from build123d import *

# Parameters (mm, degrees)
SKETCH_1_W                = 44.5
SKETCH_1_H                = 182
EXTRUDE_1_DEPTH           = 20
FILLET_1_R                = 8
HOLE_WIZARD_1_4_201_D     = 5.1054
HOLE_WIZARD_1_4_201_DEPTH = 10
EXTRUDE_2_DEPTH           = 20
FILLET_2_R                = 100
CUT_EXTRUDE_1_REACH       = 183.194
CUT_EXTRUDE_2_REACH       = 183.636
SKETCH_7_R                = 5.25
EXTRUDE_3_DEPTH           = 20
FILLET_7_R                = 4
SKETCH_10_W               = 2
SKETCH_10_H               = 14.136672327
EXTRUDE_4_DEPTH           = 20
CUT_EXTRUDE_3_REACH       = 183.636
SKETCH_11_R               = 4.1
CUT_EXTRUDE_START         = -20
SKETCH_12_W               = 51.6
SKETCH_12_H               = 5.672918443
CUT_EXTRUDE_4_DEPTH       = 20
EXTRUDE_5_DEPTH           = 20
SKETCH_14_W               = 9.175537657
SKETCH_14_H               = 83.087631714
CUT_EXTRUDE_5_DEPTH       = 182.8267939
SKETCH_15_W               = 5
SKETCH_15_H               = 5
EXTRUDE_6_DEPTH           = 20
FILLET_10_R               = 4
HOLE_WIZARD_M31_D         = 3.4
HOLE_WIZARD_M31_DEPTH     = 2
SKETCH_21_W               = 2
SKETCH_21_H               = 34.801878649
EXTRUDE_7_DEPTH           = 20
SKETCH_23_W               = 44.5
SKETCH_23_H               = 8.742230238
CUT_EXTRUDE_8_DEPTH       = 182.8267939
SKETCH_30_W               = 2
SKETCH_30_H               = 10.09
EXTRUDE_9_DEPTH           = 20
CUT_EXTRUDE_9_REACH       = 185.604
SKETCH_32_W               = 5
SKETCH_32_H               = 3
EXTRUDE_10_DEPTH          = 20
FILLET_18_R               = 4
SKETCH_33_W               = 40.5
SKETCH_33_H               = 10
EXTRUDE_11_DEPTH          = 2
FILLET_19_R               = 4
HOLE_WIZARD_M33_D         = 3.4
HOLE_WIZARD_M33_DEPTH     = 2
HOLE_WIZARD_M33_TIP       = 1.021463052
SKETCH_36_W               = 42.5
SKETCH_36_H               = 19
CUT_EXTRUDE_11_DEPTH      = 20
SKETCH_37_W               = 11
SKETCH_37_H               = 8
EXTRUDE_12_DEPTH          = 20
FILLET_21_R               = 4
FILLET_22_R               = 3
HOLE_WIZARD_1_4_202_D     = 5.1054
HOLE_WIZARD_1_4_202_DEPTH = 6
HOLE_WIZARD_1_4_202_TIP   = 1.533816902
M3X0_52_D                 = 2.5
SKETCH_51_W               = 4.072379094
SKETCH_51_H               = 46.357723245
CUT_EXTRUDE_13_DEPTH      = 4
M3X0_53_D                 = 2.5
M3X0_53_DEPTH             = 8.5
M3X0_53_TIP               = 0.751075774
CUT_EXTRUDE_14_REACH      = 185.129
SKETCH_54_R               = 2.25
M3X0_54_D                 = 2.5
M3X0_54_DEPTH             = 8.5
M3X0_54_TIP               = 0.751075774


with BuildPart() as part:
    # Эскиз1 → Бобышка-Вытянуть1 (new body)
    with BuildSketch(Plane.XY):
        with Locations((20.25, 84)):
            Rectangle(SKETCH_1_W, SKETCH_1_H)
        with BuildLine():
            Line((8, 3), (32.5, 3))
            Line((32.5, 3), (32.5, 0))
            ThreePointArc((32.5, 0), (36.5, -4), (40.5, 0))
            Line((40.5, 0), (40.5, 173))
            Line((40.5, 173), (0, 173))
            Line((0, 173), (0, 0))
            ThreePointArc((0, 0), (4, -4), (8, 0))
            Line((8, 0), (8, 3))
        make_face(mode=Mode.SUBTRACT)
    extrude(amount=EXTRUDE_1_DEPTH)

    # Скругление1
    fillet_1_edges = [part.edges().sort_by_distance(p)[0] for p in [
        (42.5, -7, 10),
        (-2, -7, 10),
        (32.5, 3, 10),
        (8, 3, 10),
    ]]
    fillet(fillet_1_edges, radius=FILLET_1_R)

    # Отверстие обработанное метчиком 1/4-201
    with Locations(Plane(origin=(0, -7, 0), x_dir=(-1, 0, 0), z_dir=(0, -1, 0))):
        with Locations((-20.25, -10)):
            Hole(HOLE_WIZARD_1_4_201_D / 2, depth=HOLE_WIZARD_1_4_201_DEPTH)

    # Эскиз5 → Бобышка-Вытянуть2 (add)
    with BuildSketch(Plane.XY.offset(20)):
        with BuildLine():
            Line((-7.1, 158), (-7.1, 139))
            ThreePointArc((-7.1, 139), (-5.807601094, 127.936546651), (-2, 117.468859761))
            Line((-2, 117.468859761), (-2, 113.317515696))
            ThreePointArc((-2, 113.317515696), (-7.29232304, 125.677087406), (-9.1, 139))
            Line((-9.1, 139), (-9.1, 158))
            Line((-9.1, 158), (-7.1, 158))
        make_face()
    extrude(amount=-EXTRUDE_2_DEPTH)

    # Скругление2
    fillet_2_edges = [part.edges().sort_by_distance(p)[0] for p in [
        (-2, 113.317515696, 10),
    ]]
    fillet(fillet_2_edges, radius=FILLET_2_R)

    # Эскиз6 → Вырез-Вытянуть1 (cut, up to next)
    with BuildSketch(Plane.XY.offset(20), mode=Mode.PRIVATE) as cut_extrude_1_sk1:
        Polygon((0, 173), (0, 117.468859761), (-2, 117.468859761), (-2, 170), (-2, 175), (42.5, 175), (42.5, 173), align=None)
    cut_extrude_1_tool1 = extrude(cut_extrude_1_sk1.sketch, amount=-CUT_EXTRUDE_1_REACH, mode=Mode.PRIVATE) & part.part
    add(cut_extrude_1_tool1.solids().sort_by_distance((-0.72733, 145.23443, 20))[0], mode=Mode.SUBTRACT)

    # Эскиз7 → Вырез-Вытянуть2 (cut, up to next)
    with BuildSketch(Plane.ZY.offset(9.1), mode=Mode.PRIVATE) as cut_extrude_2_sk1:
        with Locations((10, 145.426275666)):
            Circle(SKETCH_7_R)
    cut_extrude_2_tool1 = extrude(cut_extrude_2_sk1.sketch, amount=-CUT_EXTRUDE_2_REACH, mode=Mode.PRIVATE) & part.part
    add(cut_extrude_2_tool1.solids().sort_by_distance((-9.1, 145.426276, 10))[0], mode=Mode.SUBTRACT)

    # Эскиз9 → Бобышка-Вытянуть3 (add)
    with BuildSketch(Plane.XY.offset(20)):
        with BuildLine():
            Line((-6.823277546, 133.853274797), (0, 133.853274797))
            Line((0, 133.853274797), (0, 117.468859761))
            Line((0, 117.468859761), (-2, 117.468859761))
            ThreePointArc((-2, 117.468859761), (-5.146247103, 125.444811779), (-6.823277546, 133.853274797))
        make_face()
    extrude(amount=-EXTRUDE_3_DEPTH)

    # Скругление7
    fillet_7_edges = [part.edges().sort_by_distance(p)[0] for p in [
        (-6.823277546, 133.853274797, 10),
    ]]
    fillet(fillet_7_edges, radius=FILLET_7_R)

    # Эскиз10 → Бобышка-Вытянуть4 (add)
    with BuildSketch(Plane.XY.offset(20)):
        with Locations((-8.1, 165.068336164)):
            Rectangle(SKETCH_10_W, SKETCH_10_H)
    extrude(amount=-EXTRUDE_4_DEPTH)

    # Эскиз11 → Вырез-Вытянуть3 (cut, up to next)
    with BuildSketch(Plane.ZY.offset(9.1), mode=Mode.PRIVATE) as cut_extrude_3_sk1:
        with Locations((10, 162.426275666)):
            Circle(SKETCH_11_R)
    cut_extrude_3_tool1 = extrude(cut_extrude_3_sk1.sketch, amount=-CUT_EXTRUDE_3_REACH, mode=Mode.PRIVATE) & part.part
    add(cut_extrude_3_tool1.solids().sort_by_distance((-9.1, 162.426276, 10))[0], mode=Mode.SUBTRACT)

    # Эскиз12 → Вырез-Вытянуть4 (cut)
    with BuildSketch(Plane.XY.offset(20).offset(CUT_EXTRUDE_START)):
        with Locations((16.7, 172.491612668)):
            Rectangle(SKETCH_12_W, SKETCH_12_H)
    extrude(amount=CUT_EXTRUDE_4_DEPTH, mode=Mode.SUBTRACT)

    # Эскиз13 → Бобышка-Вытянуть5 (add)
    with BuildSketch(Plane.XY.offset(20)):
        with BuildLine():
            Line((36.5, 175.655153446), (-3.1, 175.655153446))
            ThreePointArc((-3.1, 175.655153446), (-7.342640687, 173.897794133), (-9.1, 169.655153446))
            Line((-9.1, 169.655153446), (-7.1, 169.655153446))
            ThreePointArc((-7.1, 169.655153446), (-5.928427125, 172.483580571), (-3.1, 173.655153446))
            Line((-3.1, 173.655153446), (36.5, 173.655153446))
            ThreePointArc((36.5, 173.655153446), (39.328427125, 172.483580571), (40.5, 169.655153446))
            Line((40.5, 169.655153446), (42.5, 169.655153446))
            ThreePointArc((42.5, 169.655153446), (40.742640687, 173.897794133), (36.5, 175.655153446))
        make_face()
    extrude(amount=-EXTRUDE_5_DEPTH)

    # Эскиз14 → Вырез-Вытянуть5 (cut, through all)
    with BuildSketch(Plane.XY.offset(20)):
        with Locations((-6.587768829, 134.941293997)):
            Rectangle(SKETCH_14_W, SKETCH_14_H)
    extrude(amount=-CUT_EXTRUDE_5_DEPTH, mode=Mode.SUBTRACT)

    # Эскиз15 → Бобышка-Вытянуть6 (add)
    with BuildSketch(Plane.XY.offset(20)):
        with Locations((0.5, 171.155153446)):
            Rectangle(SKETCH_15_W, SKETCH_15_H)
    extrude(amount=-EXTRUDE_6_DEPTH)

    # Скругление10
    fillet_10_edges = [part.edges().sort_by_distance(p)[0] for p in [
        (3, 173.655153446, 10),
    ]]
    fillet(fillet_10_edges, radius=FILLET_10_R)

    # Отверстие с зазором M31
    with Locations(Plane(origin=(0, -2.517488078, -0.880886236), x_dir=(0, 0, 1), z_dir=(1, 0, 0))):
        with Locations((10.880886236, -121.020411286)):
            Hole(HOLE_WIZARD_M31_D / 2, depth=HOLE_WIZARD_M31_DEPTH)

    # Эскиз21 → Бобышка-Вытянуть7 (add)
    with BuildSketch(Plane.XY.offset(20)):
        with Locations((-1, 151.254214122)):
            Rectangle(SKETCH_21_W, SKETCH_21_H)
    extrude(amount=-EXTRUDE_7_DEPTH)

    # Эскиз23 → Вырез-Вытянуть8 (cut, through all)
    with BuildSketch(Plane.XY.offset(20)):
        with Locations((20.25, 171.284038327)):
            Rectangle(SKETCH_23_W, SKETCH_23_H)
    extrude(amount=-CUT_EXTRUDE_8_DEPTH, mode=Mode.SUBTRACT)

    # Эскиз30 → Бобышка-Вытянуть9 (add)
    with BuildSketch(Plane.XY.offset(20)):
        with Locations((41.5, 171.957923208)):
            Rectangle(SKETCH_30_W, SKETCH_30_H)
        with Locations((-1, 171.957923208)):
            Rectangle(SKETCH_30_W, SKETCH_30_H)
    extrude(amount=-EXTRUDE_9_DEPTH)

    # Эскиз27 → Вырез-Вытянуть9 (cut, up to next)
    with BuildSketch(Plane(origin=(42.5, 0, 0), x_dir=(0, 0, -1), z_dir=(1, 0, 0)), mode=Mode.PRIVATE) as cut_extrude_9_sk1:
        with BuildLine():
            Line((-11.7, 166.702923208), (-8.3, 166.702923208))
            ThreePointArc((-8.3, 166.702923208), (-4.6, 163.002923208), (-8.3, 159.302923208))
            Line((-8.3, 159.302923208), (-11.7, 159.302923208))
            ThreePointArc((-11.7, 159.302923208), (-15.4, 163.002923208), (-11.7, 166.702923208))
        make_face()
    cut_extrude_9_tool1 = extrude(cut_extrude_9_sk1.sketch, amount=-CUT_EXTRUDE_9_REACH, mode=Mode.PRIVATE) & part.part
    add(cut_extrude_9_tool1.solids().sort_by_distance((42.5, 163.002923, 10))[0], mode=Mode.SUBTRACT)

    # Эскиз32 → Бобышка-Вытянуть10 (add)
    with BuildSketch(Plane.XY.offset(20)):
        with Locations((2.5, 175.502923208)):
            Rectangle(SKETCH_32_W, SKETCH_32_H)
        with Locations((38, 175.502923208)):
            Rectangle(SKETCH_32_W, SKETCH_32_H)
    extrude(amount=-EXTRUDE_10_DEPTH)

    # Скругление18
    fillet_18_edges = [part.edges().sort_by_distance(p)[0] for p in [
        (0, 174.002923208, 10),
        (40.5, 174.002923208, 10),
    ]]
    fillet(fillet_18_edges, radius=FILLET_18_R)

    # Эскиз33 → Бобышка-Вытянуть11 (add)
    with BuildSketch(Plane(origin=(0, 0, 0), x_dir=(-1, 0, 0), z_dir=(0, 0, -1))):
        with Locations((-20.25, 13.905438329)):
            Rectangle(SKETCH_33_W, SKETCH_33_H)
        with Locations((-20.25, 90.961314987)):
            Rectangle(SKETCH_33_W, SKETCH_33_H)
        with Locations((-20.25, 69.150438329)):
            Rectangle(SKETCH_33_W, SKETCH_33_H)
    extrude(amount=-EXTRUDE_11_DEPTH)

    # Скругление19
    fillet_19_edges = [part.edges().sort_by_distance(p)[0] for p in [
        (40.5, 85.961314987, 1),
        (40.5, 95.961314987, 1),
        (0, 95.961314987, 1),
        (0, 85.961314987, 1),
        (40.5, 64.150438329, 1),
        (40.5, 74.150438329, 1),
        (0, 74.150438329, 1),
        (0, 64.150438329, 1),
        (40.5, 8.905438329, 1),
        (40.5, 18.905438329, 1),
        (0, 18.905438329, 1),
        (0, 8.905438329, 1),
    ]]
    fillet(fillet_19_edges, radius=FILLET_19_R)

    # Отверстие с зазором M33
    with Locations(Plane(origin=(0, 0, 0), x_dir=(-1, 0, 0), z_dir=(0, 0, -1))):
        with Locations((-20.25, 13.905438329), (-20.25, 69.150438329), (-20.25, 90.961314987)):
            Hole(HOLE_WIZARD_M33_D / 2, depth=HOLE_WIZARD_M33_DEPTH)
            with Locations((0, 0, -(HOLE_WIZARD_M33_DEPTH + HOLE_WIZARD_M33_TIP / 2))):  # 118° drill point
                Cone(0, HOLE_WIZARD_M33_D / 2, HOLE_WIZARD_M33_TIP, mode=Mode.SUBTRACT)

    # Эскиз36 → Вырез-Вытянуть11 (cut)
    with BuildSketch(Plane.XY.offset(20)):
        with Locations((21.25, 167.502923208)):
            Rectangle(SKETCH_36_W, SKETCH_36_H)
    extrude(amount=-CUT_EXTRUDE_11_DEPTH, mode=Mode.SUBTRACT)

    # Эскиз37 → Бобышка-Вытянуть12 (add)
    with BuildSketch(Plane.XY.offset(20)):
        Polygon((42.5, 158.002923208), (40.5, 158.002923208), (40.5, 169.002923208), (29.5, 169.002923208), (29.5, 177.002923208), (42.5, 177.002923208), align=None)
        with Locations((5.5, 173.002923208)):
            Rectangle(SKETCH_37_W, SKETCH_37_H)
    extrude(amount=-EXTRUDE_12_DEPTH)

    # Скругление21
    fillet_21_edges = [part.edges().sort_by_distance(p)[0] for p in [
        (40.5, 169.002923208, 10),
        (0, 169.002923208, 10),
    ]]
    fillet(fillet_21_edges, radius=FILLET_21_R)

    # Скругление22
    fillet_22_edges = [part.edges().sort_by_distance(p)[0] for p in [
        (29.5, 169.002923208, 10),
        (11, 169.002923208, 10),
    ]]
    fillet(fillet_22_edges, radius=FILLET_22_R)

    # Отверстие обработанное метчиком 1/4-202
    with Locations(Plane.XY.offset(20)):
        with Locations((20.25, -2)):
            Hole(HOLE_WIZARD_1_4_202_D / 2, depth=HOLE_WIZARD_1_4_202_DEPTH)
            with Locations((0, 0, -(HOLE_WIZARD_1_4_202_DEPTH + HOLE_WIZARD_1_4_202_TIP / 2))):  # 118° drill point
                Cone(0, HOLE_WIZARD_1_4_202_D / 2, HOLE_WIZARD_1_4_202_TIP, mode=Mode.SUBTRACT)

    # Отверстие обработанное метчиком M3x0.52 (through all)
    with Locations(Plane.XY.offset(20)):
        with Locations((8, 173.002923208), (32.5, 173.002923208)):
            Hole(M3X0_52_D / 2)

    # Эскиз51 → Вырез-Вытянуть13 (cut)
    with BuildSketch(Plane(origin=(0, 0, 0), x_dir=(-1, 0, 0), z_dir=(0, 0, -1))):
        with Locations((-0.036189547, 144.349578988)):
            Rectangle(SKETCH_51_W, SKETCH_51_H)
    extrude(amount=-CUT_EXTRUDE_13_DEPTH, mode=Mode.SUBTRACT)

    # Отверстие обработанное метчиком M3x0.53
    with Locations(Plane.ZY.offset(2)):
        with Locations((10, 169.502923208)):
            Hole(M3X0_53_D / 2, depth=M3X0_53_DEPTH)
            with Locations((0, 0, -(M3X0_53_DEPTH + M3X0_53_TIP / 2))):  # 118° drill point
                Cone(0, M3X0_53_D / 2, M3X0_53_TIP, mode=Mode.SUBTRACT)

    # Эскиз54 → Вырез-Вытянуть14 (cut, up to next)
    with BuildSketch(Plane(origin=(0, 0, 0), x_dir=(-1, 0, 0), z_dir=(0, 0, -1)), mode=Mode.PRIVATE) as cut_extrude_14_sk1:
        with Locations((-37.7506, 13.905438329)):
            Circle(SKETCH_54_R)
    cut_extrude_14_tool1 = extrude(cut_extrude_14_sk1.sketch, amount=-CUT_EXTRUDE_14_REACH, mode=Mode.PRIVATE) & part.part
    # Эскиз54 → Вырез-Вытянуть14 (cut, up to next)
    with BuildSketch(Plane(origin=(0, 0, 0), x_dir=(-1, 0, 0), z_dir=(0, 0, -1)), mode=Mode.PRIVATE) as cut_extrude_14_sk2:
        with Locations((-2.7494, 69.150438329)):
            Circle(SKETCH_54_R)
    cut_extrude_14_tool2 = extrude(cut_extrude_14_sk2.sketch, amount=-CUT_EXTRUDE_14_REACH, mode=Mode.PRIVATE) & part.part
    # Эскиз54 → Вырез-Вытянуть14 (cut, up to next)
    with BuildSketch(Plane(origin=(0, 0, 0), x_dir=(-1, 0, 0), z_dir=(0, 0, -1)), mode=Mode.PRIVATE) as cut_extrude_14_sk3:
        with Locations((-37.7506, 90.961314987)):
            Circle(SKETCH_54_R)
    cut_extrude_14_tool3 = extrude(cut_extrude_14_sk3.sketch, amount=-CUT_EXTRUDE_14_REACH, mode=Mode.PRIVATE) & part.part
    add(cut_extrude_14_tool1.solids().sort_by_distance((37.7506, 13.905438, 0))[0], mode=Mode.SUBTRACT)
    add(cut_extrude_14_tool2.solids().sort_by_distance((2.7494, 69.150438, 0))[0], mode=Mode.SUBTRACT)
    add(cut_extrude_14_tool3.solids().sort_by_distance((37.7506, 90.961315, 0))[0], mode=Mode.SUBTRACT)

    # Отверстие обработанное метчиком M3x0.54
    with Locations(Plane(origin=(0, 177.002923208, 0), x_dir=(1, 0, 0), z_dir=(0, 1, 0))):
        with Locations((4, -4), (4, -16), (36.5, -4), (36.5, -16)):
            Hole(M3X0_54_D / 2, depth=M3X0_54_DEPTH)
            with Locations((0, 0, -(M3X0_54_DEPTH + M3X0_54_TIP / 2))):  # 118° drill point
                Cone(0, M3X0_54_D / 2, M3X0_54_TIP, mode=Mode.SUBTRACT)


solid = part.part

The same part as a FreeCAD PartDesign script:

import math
import FreeCAD as App
import Part
import Sketcher

V = App.Vector
Q = App.Units.Quantity


def edges_at(feature, points):
    """Names of the edges that pass closest to the given points."""
    edges = feature.Shape.Edges
    near = lambda p: min(range(len(edges)), key=lambda i: edges[i].distToShape(Part.Vertex(*p))[0])
    return sorted({f"Edge{near(p) + 1}" for p in points})


def add_polygon(sketch, points):
    """Adds a closed chain of lines whose ends are joined by coincident constraints."""
    first, n = sketch.GeometryCount, len(points)
    for a, b in zip(points, points[1:] + points[:1]):
        sketch.addGeometry(Part.LineSegment(App.Vector(*a, 0), App.Vector(*b, 0)), False)
    for i in range(n):
        sketch.addConstraint(Sketcher.Constraint("Coincident", first + i, 2, first + (i + 1) % n, 1))

doc = App.newDocument("Part")
body = doc.addObject("PartDesign::Body", "Body")

# Sketch on XY plane
sketch1 = body.newObject("Sketcher::SketchObject", "Sketch")
sketch1.AttachmentSupport = (doc.getObject("XY_Plane"), [""])
sketch1.MapMode = "FlatFace"
add_polygon(sketch1, [(-2, 175), (-2, -7), (42.5, -7), (42.5, 175)])  # lines 0-3
sketch1.addGeometry(Part.LineSegment(V(32.5, 3, 0), V(8, 3, 0)), False)  # 4
sketch1.addGeometry(Part.LineSegment(V(8, 3, 0), V(8, 0, 0)), False)  # 5
sketch1.addGeometry(Part.ArcOfCircle(Part.Circle(V(4, 0, 0), V(0, 0, 1), 4), math.radians(180), math.radians(360)), False)  # 6
sketch1.addGeometry(Part.LineSegment(V(0, 0, 0), V(0, 173, 0)), False)  # 7
sketch1.addGeometry(Part.LineSegment(V(0, 173, 0), V(40.5, 173, 0)), False)  # 8
sketch1.addGeometry(Part.LineSegment(V(40.5, 173, 0), V(40.5, 0, 0)), False)  # 9
sketch1.addGeometry(Part.ArcOfCircle(Part.Circle(V(36.5, 0, 0), V(0, 0, 1), 4), math.radians(180), math.radians(360)), False)  # 10
sketch1.addGeometry(Part.LineSegment(V(32.5, 0, 0), V(32.5, 3, 0)), False)  # 11
sketch1.addConstraint([
    Sketcher.Constraint("Coincident", 4, 2, 5, 1),
    Sketcher.Constraint("Tangent", 5, 2, 6, 2),
    Sketcher.Constraint("Tangent", 6, 1, 7, 1),
    Sketcher.Constraint("Coincident", 7, 2, 8, 1),
    Sketcher.Constraint("Coincident", 8, 2, 9, 1),
    Sketcher.Constraint("Tangent", 9, 2, 10, 2),
    Sketcher.Constraint("Tangent", 10, 1, 11, 1),
    Sketcher.Constraint("Coincident", 11, 2, 4, 1),
    Sketcher.Constraint("Vertical", 0),
    Sketcher.Constraint("Horizontal", 1),
    Sketcher.Constraint("Vertical", 2),
    Sketcher.Constraint("Horizontal", 3),
    Sketcher.Constraint("Horizontal", 4),
    Sketcher.Constraint("Vertical", 5),
    Sketcher.Constraint("Vertical", 7),
    Sketcher.Constraint("Horizontal", 8),
    Sketcher.Constraint("Vertical", 9),
    Sketcher.Constraint("Vertical", 11),
    Sketcher.Constraint("Coincident", 6, 1, -1, 1),
    Sketcher.Constraint("Equal", 6, 10),
    Sketcher.Constraint("PointOnObject", 10, 3, -1),
    Sketcher.Constraint("Radius", 6, Q("4 mm")),
    Sketcher.Constraint("DistanceY", 0, 2, 0, 1, Q("182 mm")),
    Sketcher.Constraint("DistanceY", 5, 2, 5, 1, Q("3 mm")),
    Sketcher.Constraint("DistanceY", 7, 1, 7, 2, Q("173 mm")),
    Sketcher.Constraint("DistanceX", 1, 1, 1, 2, Q("44.5 mm")),
    Sketcher.Constraint("DistanceX", 4, 2, 4, 1, Q("24.5 mm")),
    Sketcher.Constraint("DistanceX", 0, 2, -1, 1, Q("2 mm")),
    Sketcher.Constraint("DistanceY", 0, 2, -1, 1, Q("7 mm")),
])
pad1 = body.newObject("PartDesign::Pad", "Pad")
pad1.Profile = sketch1
pad1.Length = 20
doc.recompute()

fillet = body.newObject("PartDesign::Fillet", "Fillet")
fillet.Base = (pad1, edges_at(pad1, [
    (42.5, -7, 10),
    (-2, -7, 10),
    (32.5, 3, 10),
    (8, 3, 10),
]))
fillet.Radius = 8

# Sketch on XZ plane
sketch2 = body.newObject("Sketcher::SketchObject", "Sketch001")
sketch2.AttachmentSupport = (doc.getObject("XZ_Plane"), [""])
sketch2.MapMode = "FlatFace"
sketch2.AttachmentOffset = App.Placement(V(0, 0, 7), App.Rotation())
sketch2.addGeometry(Part.Circle(V(20.2, 10, 0), V(0, 0, 1), 2.6), False)
sketch2.addConstraint([
    Sketcher.Constraint("DistanceY", -1, 1, 0, 3, Q("10 mm")),
    Sketcher.Constraint("Diameter", 0, Q("5.1054 mm")),
    Sketcher.Constraint("DistanceX", -1, 1, 0, 3, Q("20.25 mm")),
])
doc.recompute()
hole = body.newObject("PartDesign::Hole", "Hole")
hole.Profile = sketch2
hole.ThreadType = "None"
hole.Diameter = 5.1054
hole.DepthType = "Dimension"
hole.Depth = 10
hole.DrillPoint = "Flat"

# Sketch on XY plane
sketch3 = body.newObject("Sketcher::SketchObject", "Sketch002")
sketch3.AttachmentSupport = (doc.getObject("XY_Plane"), [""])
sketch3.MapMode = "FlatFace"
sketch3.AttachmentOffset = App.Placement(V(0, 0, 20), App.Rotation())
sketch3.addGeometry([
    Part.LineSegment(V(-7.1, 139, 0), V(-7.1, 158, 0)),  # 0
    Part.LineSegment(V(-7.1, 158, 0), V(-9.1, 158, 0)),  # 1
    Part.LineSegment(V(-9.1, 158, 0), V(-9.1, 139, 0)),  # 2
    Part.ArcOfCircle(Part.Circle(V(40.9, 139, 0), V(0, 0, 1), 50), math.radians(-180), math.radians(-149)),  # 3
    Part.LineSegment(V(-2, 113.3, 0), V(-2, 117.5, 0)),  # 4
    Part.ArcOfCircle(Part.Circle(V(40.9, 139, 0), V(0, 0, 1), 48), math.radians(-180), math.radians(-153)),  # 5
], False)
sketch3.addConstraint([
    Sketcher.Constraint("Coincident", 0, 2, 1, 1),
    Sketcher.Constraint("Coincident", 1, 2, 2, 1),
    Sketcher.Constraint("Tangent", 2, 2, 3, 1),
    Sketcher.Constraint("Coincident", 3, 2, 4, 1),
    Sketcher.Constraint("Coincident", 4, 2, 5, 2),
    Sketcher.Constraint("Tangent", 5, 1, 0, 1),
    Sketcher.Constraint("Vertical", 0),
    Sketcher.Constraint("Horizontal", 1),
    Sketcher.Constraint("Vertical", 2),
    Sketcher.Constraint("Vertical", 4),
    Sketcher.Constraint("Coincident", 5, 3, 3, 3),
    Sketcher.Constraint("Radius", 3, Q("50 mm")),
    Sketcher.Constraint("Radius", 5, Q("48 mm")),
    Sketcher.Constraint("DistanceY", 0, 1, 0, 2, Q("19 mm")),
    Sketcher.Constraint("DistanceY", -1, 1, 3, 3, Q("139 mm")),
    Sketcher.Constraint("DistanceX", 3, 2, -1, 1, Q("2 mm")),
    Sketcher.Constraint("DistanceX", -1, 1, 3, 3, Q("40.9 mm")),
])
pad2 = body.newObject("PartDesign::Pad", "Pad001")
pad2.Profile = sketch3
pad2.Length = 20
pad2.Reversed = True
doc.recompute()

fillet2 = body.newObject("PartDesign::Fillet", "Fillet001")
fillet2.Base = (pad2, edges_at(pad2, [(-2, 113.318, 10)]))
fillet2.Radius = 100

# Sketch on XY plane
sketch4 = body.newObject("Sketcher::SketchObject", "Sketch003")
sketch4.AttachmentSupport = (doc.getObject("XY_Plane"), [""])
sketch4.MapMode = "FlatFace"
sketch4.AttachmentOffset = App.Placement(V(0, 0, 20), App.Rotation())
add_polygon(sketch4, [(0, 117.5), (0, 173), (42.5, 173), (42.5, 175), (-2, 175), (-2, 117.5)])  # lines 0-5
sketch4.addConstraint([
    Sketcher.Constraint("Vertical", 0),
    Sketcher.Constraint("Horizontal", 1),
    Sketcher.Constraint("Vertical", 2),
    Sketcher.Constraint("Horizontal", 3),
    Sketcher.Constraint("Vertical", 4),
    Sketcher.Constraint("Horizontal", 5),
    Sketcher.Constraint("PointOnObject", 0, 2, -2),
    Sketcher.Constraint("Equal", 5, 2),
    Sketcher.Constraint("DistanceX", 5, 1, 5, 2, Q("2 mm")),
    Sketcher.Constraint("DistanceX", 1, 1, 1, 2, Q("42.5 mm")),
    Sketcher.Constraint("DistanceY", -1, 1, 0, 2, Q("173 mm")),
    Sketcher.Constraint("DistanceY", 0, 1, 0, 2, Q("55.53114 mm")),
])
pocket1 = body.newObject("PartDesign::Pocket", "Pocket")
pocket1.Profile = sketch4
pocket1.Length = 20

# Sketch on YZ plane
sketch5 = body.newObject("Sketcher::SketchObject", "Sketch004")
sketch5.AttachmentSupport = (doc.getObject("YZ_Plane"), [""])
sketch5.MapMode = "FlatFace"
sketch5.AttachmentOffset = App.Placement(V(0, 0, -9.1), App.Rotation())
sketch5.addGeometry(Part.Circle(V(145, 10, 0), V(0, 0, 1), 5), False)
sketch5.addConstraint([
    Sketcher.Constraint("Diameter", 0, Q("10.5 mm")),
    Sketcher.Constraint("DistanceY", -1, 1, 0, 3, Q("10 mm")),
    Sketcher.Constraint("DistanceX", -1, 1, 0, 3, Q("145.426276 mm")),
])
pocket2 = body.newObject("PartDesign::Pocket", "Pocket001")
pocket2.Profile = sketch5
pocket2.Type = "UpToFirst"
pocket2.Reversed = True

# Sketch on XY plane
sketch6 = body.newObject("Sketcher::SketchObject", "Sketch005")
sketch6.AttachmentSupport = (doc.getObject("XY_Plane"), [""])
sketch6.MapMode = "FlatFace"
sketch6.AttachmentOffset = App.Placement(V(0, 0, 20), App.Rotation())
sketch6.addGeometry([
    Part.LineSegment(V(0, 133.9, 0), V(-6.8, 133.9, 0)),
    Part.ArcOfCircle(Part.Circle(V(40.9, 139, 0), V(0, 0, 1), 48), math.radians(-174), math.radians(-153)),
    Part.LineSegment(V(-2, 117.5, 0), V(0, 117.5, 0)),
    Part.LineSegment(V(0, 117.5, 0), V(0, 133.9, 0)),
], False)
sketch6.addConstraint([
    Sketcher.Constraint("Coincident", 0, 2, 1, 1),
    Sketcher.Constraint("Coincident", 1, 2, 2, 1),
    Sketcher.Constraint("Coincident", 2, 2, 3, 1),
    Sketcher.Constraint("Coincident", 3, 2, 0, 1),
    Sketcher.Constraint("Horizontal", 0),
    Sketcher.Constraint("Horizontal", 2),
    Sketcher.Constraint("Vertical", 3),
    Sketcher.Constraint("PointOnObject", 2, 2, -2),
    Sketcher.Constraint("Radius", 1, Q("48 mm")),
    Sketcher.Constraint("DistanceX", 2, 1, 2, 2, Q("2 mm")),
    Sketcher.Constraint("DistanceY", -1, 1, 1, 3, Q("139 mm")),
    Sketcher.Constraint("DistanceX", -1, 1, 1, 3, Q("40.9 mm")),
    Sketcher.Constraint("DistanceX", 0, 2, 0, 1, Q("6.823278 mm")),
])
pad3 = body.newObject("PartDesign::Pad", "Pad002")
pad3.Profile = sketch6
pad3.Length = 20
pad3.Reversed = True
doc.recompute()

fillet3 = body.newObject("PartDesign::Fillet", "Fillet002")
fillet3.Base = (pad3, edges_at(pad3, [(-6.823, 133.853, 10)]))
fillet3.Radius = 4

# Sketch on XY plane
sketch7 = body.newObject("Sketcher::SketchObject", "Sketch006")
sketch7.AttachmentSupport = (doc.getObject("XY_Plane"), [""])
sketch7.MapMode = "FlatFace"
sketch7.AttachmentOffset = App.Placement(V(0, 0, 20), App.Rotation())
add_polygon(sketch7, [(-9.1, 172.1), (-9.1, 158), (-7.1, 158), (-7.1, 172.1)])  # lines 0-3
sketch7.addConstraint([
    Sketcher.Constraint("Vertical", 0),
    Sketcher.Constraint("Horizontal", 1),
    Sketcher.Constraint("Vertical", 2),
    Sketcher.Constraint("Horizontal", 3),
    Sketcher.Constraint("DistanceX", 1, 1, 1, 2, Q("2 mm")),
    Sketcher.Constraint("DistanceY", -1, 1, 0, 2, Q("158 mm")),
    Sketcher.Constraint("DistanceX", 0, 2, -1, 1, Q("9.1 mm")),
    Sketcher.Constraint("DistanceY", 0, 2, 0, 1, Q("14.136672 mm")),
])
pad4 = body.newObject("PartDesign::Pad", "Pad003")
pad4.Profile = sketch7
pad4.Length = 20
pad4.Reversed = True

# Sketch on YZ plane
sketch8 = body.newObject("Sketcher::SketchObject", "Sketch007")
sketch8.AttachmentSupport = (doc.getObject("YZ_Plane"), [""])
sketch8.MapMode = "FlatFace"
sketch8.AttachmentOffset = App.Placement(V(0, 0, -9.1), App.Rotation())
sketch8.addGeometry(Part.Circle(V(162.4, 10, 0), V(0, 0, 1), 4.1), False)
sketch8.addConstraint([
    Sketcher.Constraint("Diameter", 0, Q("8.2 mm")),
    Sketcher.Constraint("DistanceY", -1, 1, 0, 3, Q("10 mm")),
    Sketcher.Constraint("DistanceX", -1, 1, 0, 3, Q("162.426276 mm")),
])
pocket3 = body.newObject("PartDesign::Pocket", "Pocket002")
pocket3.Profile = sketch8
pocket3.Type = "UpToFirst"
pocket3.Reversed = True

# Sketch on XY plane
sketch9 = body.newObject("Sketcher::SketchObject", "Sketch008")
sketch9.AttachmentSupport = (doc.getObject("XY_Plane"), [""])
sketch9.MapMode = "FlatFace"
add_polygon(sketch9, [(-9, 175), (-9, 170), (42, 170), (42, 175)])  # lines 0-3
sketch9.addConstraint([
    Sketcher.Constraint("Vertical", 0),
    Sketcher.Constraint("Horizontal", 1),
    Sketcher.Constraint("Vertical", 2),
    Sketcher.Constraint("Horizontal", 3),
    Sketcher.Constraint("DistanceX", 1, 1, 1, 2, Q("51.6 mm")),
    Sketcher.Constraint("DistanceX", 0, 2, -1, 1, Q("9.1 mm")),
    Sketcher.Constraint("DistanceY", 0, 2, 0, 1, Q("5.672918 mm")),
    Sketcher.Constraint("DistanceY", -1, 1, 2, 2, Q("175.328072 mm")),
])
pocket4 = body.newObject("PartDesign::Pocket", "Pocket003")
pocket4.Profile = sketch9
pocket4.Length = 20
pocket4.Reversed = True

# Sketch on XY plane
sketch10 = body.newObject("Sketcher::SketchObject", "Sketch009")
sketch10.AttachmentSupport = (doc.getObject("XY_Plane"), [""])
sketch10.MapMode = "FlatFace"
sketch10.AttachmentOffset = App.Placement(V(0, 0, 20), App.Rotation())
sketch10.addGeometry([
    Part.LineSegment(V(36.5, 175.7, 0), V(-3.1, 175.7, 0)),  # 0
    Part.ArcOfCircle(Part.Circle(V(-3.1, 169.7, 0), V(0, 0, 1), 6), math.radians(90), math.radians(180)),  # 1
    Part.LineSegment(V(-9.1, 169.7, 0), V(-7.1, 169.7, 0)),  # 2
    Part.ArcOfCircle(Part.Circle(V(-3.1, 169.7, 0), V(0, 0, 1), 4), math.radians(90), math.radians(180)),  # 3
    Part.LineSegment(V(-3.1, 173.7, 0), V(36.5, 173.7, 0)),  # 4
    Part.ArcOfCircle(Part.Circle(V(36.5, 169.7, 0), V(0, 0, 1), 4), math.radians(0), math.radians(90)),  # 5
    Part.LineSegment(V(40.5, 169.7, 0), V(42.5, 169.7, 0)),  # 6
    Part.ArcOfCircle(Part.Circle(V(36.5, 169.7, 0), V(0, 0, 1), 6), math.radians(0), math.radians(90)),  # 7
], False)
sketch10.addConstraint([
    Sketcher.Constraint("Tangent", 0, 2, 1, 1),
    Sketcher.Constraint("Coincident", 1, 2, 2, 1),
    Sketcher.Constraint("Coincident", 2, 2, 3, 2),
    Sketcher.Constraint("Tangent", 3, 1, 4, 1),
    Sketcher.Constraint("Tangent", 4, 2, 5, 2),
    Sketcher.Constraint("Coincident", 5, 1, 6, 1),
    Sketcher.Constraint("Coincident", 6, 2, 7, 1),
    Sketcher.Constraint("Tangent", 7, 2, 0, 1),
    Sketcher.Constraint("Horizontal", 0),
    Sketcher.Constraint("Horizontal", 2),
    Sketcher.Constraint("Horizontal", 4),
    Sketcher.Constraint("Horizontal", 6),
    Sketcher.Constraint("Coincident", 3, 3, 1, 3),
    Sketcher.Constraint("Coincident", 7, 3, 5, 3),
    Sketcher.Constraint("Equal", 3, 5),
    Sketcher.Constraint("Horizontal", 7, 3, 1, 2),
    Sketcher.Constraint("Horizontal", 2, 2, 5, 1),
    Sketcher.Constraint("Radius", 1, Q("6 mm")),
    Sketcher.Constraint("Radius", 3, Q("4 mm")),
    Sketcher.Constraint("DistanceX", 0, 2, 0, 1, Q("39.6 mm")),
    Sketcher.Constraint("DistanceX", 1, 3, -1, 1, Q("3.1 mm")),
    Sketcher.Constraint("DistanceY", -1, 1, 1, 3, Q("169.655153 mm")),
])
pad5 = body.newObject("PartDesign::Pad", "Pad004")
pad5.Profile = sketch10
pad5.Length = 20
pad5.Reversed = True

# Sketch on XY plane
sketch11 = body.newObject("Sketcher::SketchObject", "Sketch010")
sketch11.AttachmentSupport = (doc.getObject("XY_Plane"), [""])
sketch11.MapMode = "FlatFace"
sketch11.AttachmentOffset = App.Placement(V(0, 0, 20), App.Rotation())
add_polygon(sketch11, [(-11, 176), (-11, 93), (-2, 93), (-2, 176)])  # lines 0-3
sketch11.addConstraint([
    Sketcher.Constraint("Vertical", 0),
    Sketcher.Constraint("Horizontal", 1),
    Sketcher.Constraint("Vertical", 2),
    Sketcher.Constraint("Horizontal", 3),
    Sketcher.Constraint("DistanceX", 1, 2, -1, 1, Q("2 mm")),
    Sketcher.Constraint("DistanceY", 0, 2, 0, 1, Q("83.087632 mm")),
    Sketcher.Constraint("DistanceX", 1, 1, 1, 2, Q("9.175538 mm")),
    Sketcher.Constraint("DistanceY", -1, 1, 0, 2, Q("93.397478 mm")),
])
pocket5 = body.newObject("PartDesign::Pocket", "Pocket004")
pocket5.Profile = sketch11
pocket5.Type = "ThroughAll"

# Sketch on XY plane
sketch12 = body.newObject("Sketcher::SketchObject", "Sketch011")
sketch12.AttachmentSupport = (doc.getObject("XY_Plane"), [""])
sketch12.MapMode = "FlatFace"
sketch12.AttachmentOffset = App.Placement(V(0, 0, 20), App.Rotation())
add_polygon(sketch12, [(-2, 174), (-2, 169), (3, 169), (3, 174)])  # lines 0-3
sketch12.addConstraint([
    Sketcher.Constraint("Vertical", 0),
    Sketcher.Constraint("Horizontal", 1),
    Sketcher.Constraint("Vertical", 2),
    Sketcher.Constraint("Horizontal", 3),
    Sketcher.Constraint("Equal", 3, 0),
    Sketcher.Constraint("DistanceX", 1, 1, 1, 2, Q("5 mm")),
    Sketcher.Constraint("DistanceX", 0, 2, -1, 1, Q("2 mm")),
    Sketcher.Constraint("DistanceY", -1, 1, 0, 2, Q("168.655153 mm")),
])
pad6 = body.newObject("PartDesign::Pad", "Pad005")
pad6.Profile = sketch12
pad6.Length = 20
pad6.Reversed = True
doc.recompute()

fillet4 = body.newObject("PartDesign::Fillet", "Fillet003")
fillet4.Base = (pad6, edges_at(pad6, [(3, 173.655, 10)]))
fillet4.Radius = 4

# Sketch on YZ plane
sketch13 = body.newObject("Sketcher::SketchObject", "Sketch012")
sketch13.AttachmentSupport = (doc.getObject("YZ_Plane"), [""])
sketch13.MapMode = "FlatFace"
sketch13.addGeometry(Part.Circle(V(118.5, 10, 0), V(0, 0, 1), 1.7), False)
sketch13.addConstraint([
    Sketcher.Constraint("Diameter", 0, Q("3.4 mm")),
    Sketcher.Constraint("DistanceY", -1, 1, 0, 3, Q("10 mm")),
    Sketcher.Constraint("DistanceX", -1, 1, 0, 3, Q("118.502923 mm")),
])
doc.recompute()
hole2 = body.newObject("PartDesign::Hole", "Hole001")
hole2.Profile = sketch13
hole2.ThreadType = "None"
hole2.Diameter = 3.4
hole2.DepthType = "Dimension"
hole2.Depth = 2
hole2.DrillPoint = "Flat"

# Sketch on XY plane
sketch14 = body.newObject("Sketcher::SketchObject", "Sketch013")
sketch14.AttachmentSupport = (doc.getObject("XY_Plane"), [""])
sketch14.MapMode = "FlatFace"
sketch14.AttachmentOffset = App.Placement(V(0, 0, 20), App.Rotation())
add_polygon(sketch14, [(-2, 168.7), (-2, 133.9), (0, 133.9), (0, 168.7)])  # lines 0-3
sketch14.addConstraint([
    Sketcher.Constraint("Vertical", 0),
    Sketcher.Constraint("Horizontal", 1),
    Sketcher.Constraint("Vertical", 2),
    Sketcher.Constraint("Horizontal", 3),
    Sketcher.Constraint("PointOnObject", 1, 2, -2),
    Sketcher.Constraint("DistanceX", 1, 1, 1, 2, Q("2 mm")),
    Sketcher.Constraint("DistanceY", 0, 2, 0, 1, Q("34.801879 mm")),
    Sketcher.Constraint("DistanceY", -1, 1, 0, 2, Q("133.853275 mm")),
])
pad7 = body.newObject("PartDesign::Pad", "Pad006")
pad7.Profile = sketch14
pad7.Length = 20
pad7.Reversed = True

# Sketch on XY plane
sketch15 = body.newObject("Sketcher::SketchObject", "Sketch014")
sketch15.AttachmentSupport = (doc.getObject("XY_Plane"), [""])
sketch15.MapMode = "FlatFace"
sketch15.AttachmentOffset = App.Placement(V(0, 0, 20), App.Rotation())
add_polygon(sketch15, [(-2, 176), (-2, 167), (42, 167), (42, 176)])  # lines 0-3
sketch15.addConstraint([
    Sketcher.Constraint("Vertical", 0),
    Sketcher.Constraint("Horizontal", 1),
    Sketcher.Constraint("Vertical", 2),
    Sketcher.Constraint("Horizontal", 3),
    Sketcher.Constraint("DistanceX", 1, 1, 1, 2, Q("44.5 mm")),
    Sketcher.Constraint("DistanceX", 0, 2, -1, 1, Q("2 mm")),
    Sketcher.Constraint("DistanceY", 0, 2, 0, 1, Q("8.74223 mm")),
    Sketcher.Constraint("DistanceY", -1, 1, 0, 2, Q("166.912923 mm")),
])
pocket6 = body.newObject("PartDesign::Pocket", "Pocket005")
pocket6.Profile = sketch15
pocket6.Type = "ThroughAll"

# Sketch on XY plane
sketch16 = body.newObject("Sketcher::SketchObject", "Sketch015")
sketch16.AttachmentSupport = (doc.getObject("XY_Plane"), [""])
sketch16.MapMode = "FlatFace"
sketch16.AttachmentOffset = App.Placement(V(0, 0, 20), App.Rotation())
add_polygon(sketch16, [(40.5, 177), (40.5, 166.9), (42.5, 166.9), (42.5, 177)])  # lines 0-3
add_polygon(sketch16, [(-2, 177), (-2, 166.9), (0, 166.9), (0, 177)])  # lines 4-7
sketch16.addConstraint([
    Sketcher.Constraint("Vertical", 0),
    Sketcher.Constraint("Horizontal", 1),
    Sketcher.Constraint("Vertical", 2),
    Sketcher.Constraint("Horizontal", 3),
    Sketcher.Constraint("Vertical", 4),
    Sketcher.Constraint("Horizontal", 5),
    Sketcher.Constraint("Vertical", 6),
    Sketcher.Constraint("Horizontal", 7),
    Sketcher.Constraint("PointOnObject", 5, 2, -2),
    Sketcher.Constraint("Horizontal", 1, 2, 4, 2),
    Sketcher.Constraint("Horizontal", 3, 2, 6, 2),
    Sketcher.Constraint("Equal", 3, 5),
    Sketcher.Constraint("DistanceX", 1, 1, 1, 2, Q("2 mm")),
    Sketcher.Constraint("DistanceY", 0, 2, 0, 1, Q("10.09 mm")),
    Sketcher.Constraint("DistanceX", -1, 1, 0, 2, Q("40.5 mm")),
    Sketcher.Constraint("DistanceY", -1, 1, 0, 2, Q("166.912923 mm")),
])
pad8 = body.newObject("PartDesign::Pad", "Pad007")
pad8.Profile = sketch16
pad8.Length = 20
pad8.Reversed = True

# Sketch on YZ plane
sketch17 = body.newObject("Sketcher::SketchObject", "Sketch016")
sketch17.AttachmentSupport = (doc.getObject("YZ_Plane"), [""])
sketch17.MapMode = "FlatFace"
sketch17.AttachmentOffset = App.Placement(V(0, 0, 42.5), App.Rotation())
sketch17.addGeometry([
    Part.LineSegment(V(166.7, 8.3, 0), V(166.7, 11.7, 0)),
    Part.ArcOfCircle(Part.Circle(V(163, 11.7, 0), V(0, 0, 1), 3.7), math.radians(0), math.radians(180)),
    Part.LineSegment(V(159.3, 11.7, 0), V(159.3, 8.3, 0)),
    Part.ArcOfCircle(Part.Circle(V(163, 8.3, 0), V(0, 0, 1), 3.7), math.radians(180), math.radians(360)),
], False)
sketch17.addConstraint([
    Sketcher.Constraint("Tangent", 0, 2, 1, 1),
    Sketcher.Constraint("Tangent", 1, 2, 2, 1),
    Sketcher.Constraint("Tangent", 2, 2, 3, 1),
    Sketcher.Constraint("Tangent", 3, 2, 0, 1),
    Sketcher.Constraint("Vertical", 0),
    Sketcher.Constraint("Vertical", 2),
    Sketcher.Constraint("Radius", 1, Q("3.7 mm")),
    Sketcher.Constraint("DistanceY", 0, 1, 0, 2, Q("3.4 mm")),
    Sketcher.Constraint("DistanceY", -1, 1, 1, 3, Q("11.7 mm")),
    Sketcher.Constraint("DistanceX", -1, 1, 1, 3, Q("163.002923 mm")),
])
pocket7 = body.newObject("PartDesign::Pocket", "Pocket006")
pocket7.Profile = sketch17
pocket7.Type = "UpToFirst"

# Sketch on XY plane
sketch18 = body.newObject("Sketcher::SketchObject", "Sketch017")
sketch18.AttachmentSupport = (doc.getObject("XY_Plane"), [""])
sketch18.MapMode = "FlatFace"
sketch18.AttachmentOffset = App.Placement(V(0, 0, 20), App.Rotation())
add_polygon(sketch18, [(0, 177), (0, 174), (5, 174), (5, 177)])  # lines 0-3
add_polygon(sketch18, [(35.5, 177), (35.5, 174), (40.5, 174), (40.5, 177)])  # lines 4-7
sketch18.addConstraint([
    Sketcher.Constraint("Vertical", 0),
    Sketcher.Constraint("Horizontal", 1),
    Sketcher.Constraint("Vertical", 2),
    Sketcher.Constraint("Horizontal", 3),
    Sketcher.Constraint("Vertical", 4),
    Sketcher.Constraint("Horizontal", 5),
    Sketcher.Constraint("Vertical", 6),
    Sketcher.Constraint("Horizontal", 7),
    Sketcher.Constraint("PointOnObject", 0, 2, -2),
    Sketcher.Constraint("Horizontal", 1, 2, 4, 2),
    Sketcher.Constraint("Horizontal", 3, 2, 6, 2),
    Sketcher.Constraint("Equal", 3, 5),
    Sketcher.Constraint("DistanceX", 1, 1, 1, 2, Q("5 mm")),
    Sketcher.Constraint("DistanceY", 0, 2, 0, 1, Q("3 mm")),
    Sketcher.Constraint("DistanceX", -1, 1, 4, 2, Q("35.5 mm")),
    Sketcher.Constraint("DistanceY", -1, 1, 0, 2, Q("174.002923 mm")),
])
pad9 = body.newObject("PartDesign::Pad", "Pad008")
pad9.Profile = sketch18
pad9.Length = 20
pad9.Reversed = True
doc.recompute()

fillet5 = body.newObject("PartDesign::Fillet", "Fillet004")
fillet5.Base = (pad9, edges_at(pad9, [(0, 174.003, 10), (40.5, 174.003, 10)]))
fillet5.Radius = 4

# Sketch on XY plane
sketch19 = body.newObject("Sketcher::SketchObject", "Sketch018")
sketch19.AttachmentSupport = (doc.getObject("XY_Plane"), [""])
sketch19.MapMode = "FlatFace"
add_polygon(sketch19, [(40, 19), (40, 9), (0, 9), (0, 19)])  # lines 0-3
add_polygon(sketch19, [(40, 96), (40, 86), (0, 86), (0, 96)])  # lines 4-7
add_polygon(sketch19, [(40, 74), (40, 64), (0, 64), (0, 74)])  # lines 8-11
sketch19.addConstraint([
    Sketcher.Constraint("Vertical", 0),
    Sketcher.Constraint("Horizontal", 1),
    Sketcher.Constraint("Vertical", 2),
    Sketcher.Constraint("Horizontal", 3),
    Sketcher.Constraint("Vertical", 4),
    Sketcher.Constraint("Horizontal", 5),
    Sketcher.Constraint("Vertical", 6),
    Sketcher.Constraint("Horizontal", 7),
    Sketcher.Constraint("Vertical", 8),
    Sketcher.Constraint("Horizontal", 9),
    Sketcher.Constraint("Vertical", 10),
    Sketcher.Constraint("Horizontal", 11),
    Sketcher.Constraint("PointOnObject", 1, 2, -2),
    Sketcher.Constraint("PointOnObject", 5, 2, -2),
    Sketcher.Constraint("PointOnObject", 9, 2, -2),
    Sketcher.Constraint("Vertical", 3, 2, 4, 2),
    Sketcher.Constraint("Vertical", 7, 2, 8, 2),
    Sketcher.Constraint("Equal", 2, 4),
    Sketcher.Constraint("Equal", 6, 8),
    Sketcher.Constraint("DistanceY", 0, 2, 0, 1, Q("10 mm")),
    Sketcher.Constraint("DistanceX", 1, 2, 1, 1, Q("40.5 mm")),
    Sketcher.Constraint("DistanceY", 3, 2, 8, 2, Q("45.245 mm")),
    Sketcher.Constraint("DistanceY", -1, 1, 0, 2, Q("8.905438 mm")),
    Sketcher.Constraint("DistanceY", -1, 1, 4, 2, Q("85.961315 mm")),
])
pad10 = body.newObject("PartDesign::Pad", "Pad009")
pad10.Profile = sketch19
pad10.Length = 2
doc.recompute()

fillet6 = body.newObject("PartDesign::Fillet", "Fillet005")
fillet6.Base = (pad10, edges_at(pad10, [
    (40.5, 85.961, 1),
    (40.5, 95.961, 1),
    (0, 95.961, 1),
    (0, 85.961, 1),
    (40.5, 64.15, 1),
    (40.5, 74.15, 1),
    (0, 74.15, 1),
    (0, 64.15, 1),
    (40.5, 8.905, 1),
    (40.5, 18.905, 1),
    (0, 18.905, 1),
    (0, 8.905, 1),
]))
fillet6.Radius = 4

# Sketch on XY plane
sketch20 = body.newObject("Sketcher::SketchObject", "Sketch019")
sketch20.AttachmentSupport = (doc.getObject("XY_Plane"), [""])
sketch20.MapMode = "FlatFace"
sketch20.addGeometry([
    Part.Circle(V(20.2, 13.9, 0), V(0, 0, 1), 1.7),
    Part.Circle(V(20.2, 69.2, 0), V(0, 0, 1), 1.7),
    Part.Circle(V(20.2, 91, 0), V(0, 0, 1), 1.7),
], False)
sketch20.addConstraint([
    Sketcher.Constraint("Equal", 0, 1),
    Sketcher.Constraint("Equal", 1, 2),
    Sketcher.Constraint("Vertical", 0, 3, 1, 3),
    Sketcher.Constraint("Vertical", 1, 3, 2, 3),
    Sketcher.Constraint("Diameter", 0, Q("3.4 mm")),
    Sketcher.Constraint("DistanceX", -1, 1, 0, 3, Q("20.25 mm")),
    Sketcher.Constraint("DistanceY", 0, 3, 1, 3, Q("55.245 mm")),
    Sketcher.Constraint("DistanceY", -1, 1, 0, 3, Q("13.905438 mm")),
    Sketcher.Constraint("DistanceY", -1, 1, 2, 3, Q("90.961315 mm")),
])
doc.recompute()
hole3 = body.newObject("PartDesign::Hole", "Hole002")
hole3.Profile = sketch20
hole3.ThreadType = "None"
hole3.Diameter = 3.4
hole3.DepthType = "Dimension"
hole3.Depth = 2
hole3.DrillPoint = "Angled"
hole3.DrillPointAngle = 118
hole3.Reversed = True

# Sketch on XY plane
sketch21 = body.newObject("Sketcher::SketchObject", "Sketch020")
sketch21.AttachmentSupport = (doc.getObject("XY_Plane"), [""])
sketch21.MapMode = "FlatFace"
sketch21.AttachmentOffset = App.Placement(V(0, 0, 20), App.Rotation())
add_polygon(sketch21, [(0, 177), (0, 158), (42, 158), (42, 177)])  # lines 0-3
sketch21.addConstraint([
    Sketcher.Constraint("Vertical", 0),
    Sketcher.Constraint("Horizontal", 1),
    Sketcher.Constraint("Vertical", 2),
    Sketcher.Constraint("Horizontal", 3),
    Sketcher.Constraint("PointOnObject", 0, 2, -2),
    Sketcher.Constraint("DistanceY", 0, 2, 0, 1, Q("19 mm")),
    Sketcher.Constraint("DistanceX", 1, 1, 1, 2, Q("42.5 mm")),
    Sketcher.Constraint("DistanceY", -1, 1, 0, 2, Q("158.002923 mm")),
])
pocket8 = body.newObject("PartDesign::Pocket", "Pocket007")
pocket8.Profile = sketch21
pocket8.Length = 20

# Sketch on XY plane
sketch22 = body.newObject("Sketcher::SketchObject", "Sketch021")
sketch22.AttachmentSupport = (doc.getObject("XY_Plane"), [""])
sketch22.MapMode = "FlatFace"
sketch22.AttachmentOffset = App.Placement(V(0, 0, 20), App.Rotation())
add_polygon(sketch22, [(40.5, 158), (42.5, 158), (42.5, 177), (29.5, 177), (29.5, 169), (40.5, 169)])  # lines 0-5
add_polygon(sketch22, [(0, 177), (0, 169), (11, 169), (11, 177)])  # lines 6-9
sketch22.addConstraint([
    Sketcher.Constraint("Horizontal", 0),
    Sketcher.Constraint("Vertical", 1),
    Sketcher.Constraint("Horizontal", 2),
    Sketcher.Constraint("Vertical", 3),
    Sketcher.Constraint("Horizontal", 4),
    Sketcher.Constraint("Vertical", 5),
    Sketcher.Constraint("Vertical", 6),
    Sketcher.Constraint("Horizontal", 7),
    Sketcher.Constraint("Vertical", 8),
    Sketcher.Constraint("Horizontal", 9),
    Sketcher.Constraint("PointOnObject", 6, 2, -2),
    Sketcher.Constraint("Horizontal", 4, 2, 6, 2),
    Sketcher.Constraint("Horizontal", 2, 2, 8, 2),
    Sketcher.Constraint("Equal", 4, 7),
    Sketcher.Constraint("Equal", 9, 5),
    Sketcher.Constraint("DistanceX", 0, 1, 0, 2, Q("2 mm")),
    Sketcher.Constraint("DistanceX", 2, 2, 2, 1, Q("13 mm")),
    Sketcher.Constraint("DistanceY", 1, 1, 1, 2, Q("19 mm")),
    Sketcher.Constraint("DistanceX", -1, 1, 0, 2, Q("42.5 mm")),
    Sketcher.Constraint("DistanceY", -1, 1, 0, 2, Q("158.002923 mm")),
])
pad11 = body.newObject("PartDesign::Pad", "Pad010")
pad11.Profile = sketch22
pad11.Length = 20
pad11.Reversed = True
doc.recompute()

fillet7 = body.newObject("PartDesign::Fillet", "Fillet006")
fillet7.Base = (pad11, edges_at(pad11, [(40.5, 169.003, 10), (0, 169.003, 10)]))
fillet7.Radius = 4
doc.recompute()

fillet8 = body.newObject("PartDesign::Fillet", "Fillet007")
fillet8.Base = (fillet7, edges_at(fillet7, [(29.5, 169.003, 10), (11, 169.003, 10)]))
fillet8.Radius = 3

# Sketch on XY plane
sketch23 = body.newObject("Sketcher::SketchObject", "Sketch022")
sketch23.AttachmentSupport = (doc.getObject("XY_Plane"), [""])
sketch23.MapMode = "FlatFace"
sketch23.AttachmentOffset = App.Placement(V(0, 0, 20), App.Rotation())
sketch23.addGeometry(Part.Circle(V(20.2, -2, 0), V(0, 0, 1), 2.6), False)
sketch23.addConstraint([
    Sketcher.Constraint("DistanceY", 0, 3, -1, 1, Q("2 mm")),
    Sketcher.Constraint("Diameter", 0, Q("5.1054 mm")),
    Sketcher.Constraint("DistanceX", -1, 1, 0, 3, Q("20.25 mm")),
])
doc.recompute()
hole4 = body.newObject("PartDesign::Hole", "Hole003")
hole4.Profile = sketch23
hole4.ThreadType = "None"
hole4.Diameter = 5.1054
hole4.DepthType = "Dimension"
hole4.Depth = 6
hole4.DrillPoint = "Angled"
hole4.DrillPointAngle = 118

# Sketch on XY plane
sketch24 = body.newObject("Sketcher::SketchObject", "Sketch023")
sketch24.AttachmentSupport = (doc.getObject("XY_Plane"), [""])
sketch24.MapMode = "FlatFace"
sketch24.AttachmentOffset = App.Placement(V(0, 0, 20), App.Rotation())
sketch24.addGeometry([
    Part.Circle(V(8, 173, 0), V(0, 0, 1), 1.2),
    Part.Circle(V(32.5, 173, 0), V(0, 0, 1), 1.2),
], False)
sketch24.addConstraint([
    Sketcher.Constraint("Equal", 0, 1),
    Sketcher.Constraint("Horizontal", 0, 3, 1, 3),
    Sketcher.Constraint("Diameter", 0, Q("2.5 mm")),
    Sketcher.Constraint("DistanceX", -1, 1, 0, 3, Q("8 mm")),
    Sketcher.Constraint("DistanceX", -1, 1, 1, 3, Q("32.5 mm")),
    Sketcher.Constraint("DistanceY", -1, 1, 0, 3, Q("173.002923 mm")),
])
doc.recompute()
hole5 = body.newObject("PartDesign::Hole", "Hole004")
hole5.Profile = sketch24
hole5.ThreadType = "None"
hole5.Diameter = 2.5
hole5.DepthType = "ThroughAll"

# Sketch on XY plane
sketch25 = body.newObject("Sketcher::SketchObject", "Sketch024")
sketch25.AttachmentSupport = (doc.getObject("XY_Plane"), [""])
sketch25.MapMode = "FlatFace"
add_polygon(sketch25, [(2.1, 167.5), (2.1, 121.2), (-2, 121.2), (-2, 167.5)])  # lines 0-3
sketch25.addConstraint([
    Sketcher.Constraint("Vertical", 0),
    Sketcher.Constraint("Horizontal", 1),
    Sketcher.Constraint("Vertical", 2),
    Sketcher.Constraint("Horizontal", 3),
    Sketcher.Constraint("DistanceX", 1, 2, -1, 1, Q("2 mm")),
    Sketcher.Constraint("DistanceX", 1, 2, 1, 1, Q("4.072379 mm")),
    Sketcher.Constraint("DistanceY", 0, 2, 0, 1, Q("46.357723 mm")),
    Sketcher.Constraint("DistanceY", -1, 1, 2, 2, Q("167.528441 mm")),
])
pocket9 = body.newObject("PartDesign::Pocket", "Pocket008")
pocket9.Profile = sketch25
pocket9.Length = 4
pocket9.Reversed = True

# Sketch on YZ plane
sketch26 = body.newObject("Sketcher::SketchObject", "Sketch025")
sketch26.AttachmentSupport = (doc.getObject("YZ_Plane"), [""])
sketch26.MapMode = "FlatFace"
sketch26.AttachmentOffset = App.Placement(V(0, 0, -2), App.Rotation())
sketch26.addGeometry(Part.Circle(V(169.5, 10, 0), V(0, 0, 1), 1.2), False)
sketch26.addConstraint([
    Sketcher.Constraint("Diameter", 0, Q("2.5 mm")),
    Sketcher.Constraint("DistanceY", -1, 1, 0, 3, Q("10 mm")),
    Sketcher.Constraint("DistanceX", -1, 1, 0, 3, Q("169.502923 mm")),
])
doc.recompute()
hole6 = body.newObject("PartDesign::Hole", "Hole005")
hole6.Profile = sketch26
hole6.ThreadType = "None"
hole6.Diameter = 2.5
hole6.DepthType = "Dimension"
hole6.Depth = 8.5
hole6.DrillPoint = "Angled"
hole6.DrillPointAngle = 118
hole6.Reversed = True

# Sketch on XY plane
sketch27 = body.newObject("Sketcher::SketchObject", "Sketch026")
sketch27.AttachmentSupport = (doc.getObject("XY_Plane"), [""])
sketch27.MapMode = "FlatFace"
sketch27.addGeometry(Part.Circle(V(37.8, 13.9, 0), V(0, 0, 1), 2.2), False)
sketch27.addConstraint([
    Sketcher.Constraint("Diameter", 0, Q("4.5 mm")),
    Sketcher.Constraint("DistanceX", -1, 1, 0, 3, Q("37.7506 mm")),
    Sketcher.Constraint("DistanceY", -1, 1, 0, 3, Q("13.905438 mm")),
])
pocket10 = body.newObject("PartDesign::Pocket", "Pocket009")
pocket10.Profile = sketch27
pocket10.Type = "UpToFirst"
pocket10.Reversed = True

# Sketch on XY plane
sketch28 = body.newObject("Sketcher::SketchObject", "Sketch027")
sketch28.AttachmentSupport = (doc.getObject("XY_Plane"), [""])
sketch28.MapMode = "FlatFace"
sketch28.addGeometry(Part.Circle(V(2.7, 69.2, 0), V(0, 0, 1), 2.2), False)
sketch28.addConstraint([
    Sketcher.Constraint("Diameter", 0, Q("4.5 mm")),
    Sketcher.Constraint("DistanceX", -1, 1, 0, 3, Q("2.7494 mm")),
    Sketcher.Constraint("DistanceY", -1, 1, 0, 3, Q("69.150438 mm")),
])
pocket11 = body.newObject("PartDesign::Pocket", "Pocket010")
pocket11.Profile = sketch28
pocket11.Type = "UpToFirst"
pocket11.Reversed = True

# Sketch on XY plane
sketch29 = body.newObject("Sketcher::SketchObject", "Sketch028")
sketch29.AttachmentSupport = (doc.getObject("XY_Plane"), [""])
sketch29.MapMode = "FlatFace"
sketch29.addGeometry(Part.Circle(V(37.8, 91, 0), V(0, 0, 1), 2.2), False)
sketch29.addConstraint([
    Sketcher.Constraint("Diameter", 0, Q("4.5 mm")),
    Sketcher.Constraint("DistanceX", -1, 1, 0, 3, Q("37.7506 mm")),
    Sketcher.Constraint("DistanceY", -1, 1, 0, 3, Q("90.961315 mm")),
])
pocket12 = body.newObject("PartDesign::Pocket", "Pocket011")
pocket12.Profile = sketch29
pocket12.Type = "UpToFirst"
pocket12.Reversed = True

# Sketch on XZ plane
sketch30 = body.newObject("Sketcher::SketchObject", "Sketch029")
sketch30.AttachmentSupport = (doc.getObject("XZ_Plane"), [""])
sketch30.MapMode = "FlatFace"
sketch30.AttachmentOffset = App.Placement(V(0, 0, -177.002923), App.Rotation())
sketch30.addGeometry([
    Part.Circle(V(4, 4, 0), V(0, 0, 1), 1.2),
    Part.Circle(V(4, 16, 0), V(0, 0, 1), 1.2),
    Part.Circle(V(36.5, 4, 0), V(0, 0, 1), 1.2),
    Part.Circle(V(36.5, 16, 0), V(0, 0, 1), 1.2),
], False)
sketch30.addConstraint([
    Sketcher.Constraint("Equal", 0, 1),
    Sketcher.Constraint("Equal", 1, 2),
    Sketcher.Constraint("Equal", 2, 3),
    Sketcher.Constraint("Horizontal", 0, 3, 2, 3),
    Sketcher.Constraint("Horizontal", 1, 3, 3, 3),
    Sketcher.Constraint("Vertical", 0, 3, 1, 3),
    Sketcher.Constraint("Vertical", 2, 3, 3, 3),
    Sketcher.Constraint("Diameter", 0, Q("2.5 mm")),
    Sketcher.Constraint("DistanceX", -1, 1, 0, 3, Q("4 mm")),
    Sketcher.Constraint("DistanceY", -1, 1, 0, 3, Q("4 mm")),
    Sketcher.Constraint("DistanceY", -1, 1, 1, 3, Q("16 mm")),
    Sketcher.Constraint("DistanceX", -1, 1, 2, 3, Q("36.5 mm")),
])
doc.recompute()
hole7 = body.newObject("PartDesign::Hole", "Hole006")
hole7.Profile = sketch30
hole7.ThreadType = "None"
hole7.Diameter = 2.5
hole7.DepthType = "Dimension"
hole7.Depth = 8.5
hole7.DrillPoint = "Angled"
hole7.DrillPointAngle = 118
hole7.Reversed = True

doc.recompute()
